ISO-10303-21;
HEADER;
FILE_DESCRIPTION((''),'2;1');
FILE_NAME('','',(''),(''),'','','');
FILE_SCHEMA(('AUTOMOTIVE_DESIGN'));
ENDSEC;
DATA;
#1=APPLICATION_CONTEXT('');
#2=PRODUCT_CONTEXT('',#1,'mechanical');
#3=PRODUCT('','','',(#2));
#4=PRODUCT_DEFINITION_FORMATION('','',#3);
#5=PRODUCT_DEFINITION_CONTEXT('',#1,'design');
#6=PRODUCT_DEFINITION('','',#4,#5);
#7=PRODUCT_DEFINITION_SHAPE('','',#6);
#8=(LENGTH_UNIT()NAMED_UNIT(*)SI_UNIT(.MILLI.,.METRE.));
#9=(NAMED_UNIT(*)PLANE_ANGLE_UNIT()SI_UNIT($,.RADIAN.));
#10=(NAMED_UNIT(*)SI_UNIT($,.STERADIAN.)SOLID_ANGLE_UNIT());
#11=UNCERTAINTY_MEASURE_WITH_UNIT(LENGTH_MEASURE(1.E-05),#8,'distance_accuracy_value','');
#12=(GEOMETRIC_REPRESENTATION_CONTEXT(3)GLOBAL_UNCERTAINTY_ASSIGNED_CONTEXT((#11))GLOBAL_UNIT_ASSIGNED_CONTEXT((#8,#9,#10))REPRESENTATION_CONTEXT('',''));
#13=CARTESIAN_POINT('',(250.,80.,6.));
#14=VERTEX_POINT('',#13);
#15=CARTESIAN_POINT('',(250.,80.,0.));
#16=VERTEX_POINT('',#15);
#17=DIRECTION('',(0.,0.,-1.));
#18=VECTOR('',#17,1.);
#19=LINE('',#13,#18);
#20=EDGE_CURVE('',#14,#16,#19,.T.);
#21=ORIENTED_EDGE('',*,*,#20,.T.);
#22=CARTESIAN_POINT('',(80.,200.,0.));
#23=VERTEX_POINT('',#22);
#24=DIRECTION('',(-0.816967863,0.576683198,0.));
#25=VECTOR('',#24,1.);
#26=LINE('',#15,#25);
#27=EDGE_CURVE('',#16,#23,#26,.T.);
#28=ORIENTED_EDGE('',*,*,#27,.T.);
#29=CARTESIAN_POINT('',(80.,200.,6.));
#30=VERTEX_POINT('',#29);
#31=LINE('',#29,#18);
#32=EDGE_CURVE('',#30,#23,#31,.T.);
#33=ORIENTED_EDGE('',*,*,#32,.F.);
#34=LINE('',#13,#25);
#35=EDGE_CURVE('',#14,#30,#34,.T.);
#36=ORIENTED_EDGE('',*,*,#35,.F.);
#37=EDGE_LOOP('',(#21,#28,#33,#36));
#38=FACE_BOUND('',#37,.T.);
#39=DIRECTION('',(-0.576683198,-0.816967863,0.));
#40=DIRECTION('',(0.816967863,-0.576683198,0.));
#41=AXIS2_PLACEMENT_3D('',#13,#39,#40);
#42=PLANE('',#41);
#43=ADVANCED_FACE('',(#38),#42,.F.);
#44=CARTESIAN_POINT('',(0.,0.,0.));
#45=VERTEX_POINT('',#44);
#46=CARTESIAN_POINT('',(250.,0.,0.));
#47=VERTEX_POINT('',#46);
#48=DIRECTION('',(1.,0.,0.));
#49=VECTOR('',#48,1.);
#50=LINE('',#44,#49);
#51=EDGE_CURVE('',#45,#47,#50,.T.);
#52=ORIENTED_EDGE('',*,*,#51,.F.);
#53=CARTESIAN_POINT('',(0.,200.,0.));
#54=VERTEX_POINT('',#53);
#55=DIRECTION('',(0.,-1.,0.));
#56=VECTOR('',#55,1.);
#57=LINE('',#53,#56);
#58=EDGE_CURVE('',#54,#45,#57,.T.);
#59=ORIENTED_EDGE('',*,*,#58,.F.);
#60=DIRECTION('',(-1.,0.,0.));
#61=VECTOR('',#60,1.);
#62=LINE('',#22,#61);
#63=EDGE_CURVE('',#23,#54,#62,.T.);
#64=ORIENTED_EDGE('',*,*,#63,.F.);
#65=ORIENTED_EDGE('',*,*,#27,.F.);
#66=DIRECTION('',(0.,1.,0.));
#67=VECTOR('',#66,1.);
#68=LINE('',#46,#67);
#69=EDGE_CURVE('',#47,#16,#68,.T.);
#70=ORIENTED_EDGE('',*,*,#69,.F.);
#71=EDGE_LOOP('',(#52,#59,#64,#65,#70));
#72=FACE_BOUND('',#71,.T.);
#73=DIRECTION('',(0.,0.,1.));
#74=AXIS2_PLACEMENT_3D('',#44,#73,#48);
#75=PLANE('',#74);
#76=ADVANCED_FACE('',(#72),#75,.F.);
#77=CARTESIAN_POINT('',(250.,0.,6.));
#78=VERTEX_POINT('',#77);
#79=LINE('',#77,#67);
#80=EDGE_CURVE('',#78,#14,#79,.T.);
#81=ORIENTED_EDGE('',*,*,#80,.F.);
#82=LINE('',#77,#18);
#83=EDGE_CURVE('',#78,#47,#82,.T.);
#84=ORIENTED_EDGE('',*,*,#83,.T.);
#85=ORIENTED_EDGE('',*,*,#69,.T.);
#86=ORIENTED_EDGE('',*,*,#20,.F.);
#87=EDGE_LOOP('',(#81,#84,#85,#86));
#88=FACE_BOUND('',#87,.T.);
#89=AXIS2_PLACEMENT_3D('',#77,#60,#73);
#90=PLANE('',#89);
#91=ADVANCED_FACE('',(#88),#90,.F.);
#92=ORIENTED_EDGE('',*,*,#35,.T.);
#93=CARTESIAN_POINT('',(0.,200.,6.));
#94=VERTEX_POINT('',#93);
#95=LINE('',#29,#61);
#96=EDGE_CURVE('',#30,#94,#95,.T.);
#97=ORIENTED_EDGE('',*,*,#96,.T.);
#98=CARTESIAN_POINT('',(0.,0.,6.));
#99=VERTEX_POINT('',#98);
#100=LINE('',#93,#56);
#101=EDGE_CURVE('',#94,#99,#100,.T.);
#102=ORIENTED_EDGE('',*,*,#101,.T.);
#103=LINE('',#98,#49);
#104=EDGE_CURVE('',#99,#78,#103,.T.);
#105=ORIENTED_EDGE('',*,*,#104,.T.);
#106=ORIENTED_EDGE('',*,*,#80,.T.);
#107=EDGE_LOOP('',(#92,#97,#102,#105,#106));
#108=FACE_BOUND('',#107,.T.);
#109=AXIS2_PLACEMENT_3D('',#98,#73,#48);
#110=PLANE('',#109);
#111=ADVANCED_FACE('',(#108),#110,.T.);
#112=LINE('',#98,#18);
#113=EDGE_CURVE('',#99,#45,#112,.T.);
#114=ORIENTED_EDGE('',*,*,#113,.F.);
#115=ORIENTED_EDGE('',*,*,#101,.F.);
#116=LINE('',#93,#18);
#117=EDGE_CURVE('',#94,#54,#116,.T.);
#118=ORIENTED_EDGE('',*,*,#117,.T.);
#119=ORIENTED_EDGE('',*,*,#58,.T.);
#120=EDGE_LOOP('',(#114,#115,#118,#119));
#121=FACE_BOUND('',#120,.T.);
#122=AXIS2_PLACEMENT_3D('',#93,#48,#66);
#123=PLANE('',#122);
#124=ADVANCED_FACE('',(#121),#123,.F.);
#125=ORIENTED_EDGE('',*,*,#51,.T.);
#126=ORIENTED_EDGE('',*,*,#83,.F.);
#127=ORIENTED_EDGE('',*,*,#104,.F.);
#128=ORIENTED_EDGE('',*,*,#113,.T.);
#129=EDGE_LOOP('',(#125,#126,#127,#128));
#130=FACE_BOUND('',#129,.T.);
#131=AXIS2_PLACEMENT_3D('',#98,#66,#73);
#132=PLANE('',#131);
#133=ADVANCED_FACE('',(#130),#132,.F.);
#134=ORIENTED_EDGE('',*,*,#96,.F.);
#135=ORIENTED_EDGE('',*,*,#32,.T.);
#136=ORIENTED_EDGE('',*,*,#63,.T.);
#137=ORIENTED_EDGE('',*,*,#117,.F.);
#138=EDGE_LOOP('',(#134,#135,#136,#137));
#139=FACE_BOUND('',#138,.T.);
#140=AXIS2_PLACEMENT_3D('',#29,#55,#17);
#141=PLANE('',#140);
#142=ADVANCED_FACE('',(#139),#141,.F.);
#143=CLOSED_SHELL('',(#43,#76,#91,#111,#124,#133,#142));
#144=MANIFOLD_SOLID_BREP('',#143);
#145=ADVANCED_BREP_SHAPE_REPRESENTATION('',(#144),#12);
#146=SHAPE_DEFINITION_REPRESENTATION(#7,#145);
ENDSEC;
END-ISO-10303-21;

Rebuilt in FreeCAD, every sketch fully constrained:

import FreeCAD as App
import Part
import Sketcher

V = App.Vector
Q = App.Units.Quantity


def add_polygon(sketch, points):
    """Adds a closed chain of lines whose ends are joined by coincident constraints."""
    first, n = sketch.GeometryCount, len(points)
    for a, b in zip(points, points[1:] + points[:1]):
        sketch.addGeometry(Part.LineSegment(App.Vector(*a, 0), App.Vector(*b, 0)), False)
    for i in range(n):
        sketch.addConstraint(Sketcher.Constraint("Coincident", first + i, 2, first + (i + 1) % n, 1))

doc = App.newDocument("Part")
params = doc.addObject("Spreadsheet::Sheet", "Params")
for row, (alias, value) in enumerate([
    ("sketch1_width", "250 mm"),
    ("sketch1_width2", "80 mm"),
    ("sketch1_height", "200 mm"),
    ("pad1_length", "6 mm"),
], start=1):
    params.set(f"A{row}", alias)
    params.set(f"B{row}", "=" + value)
    params.setAlias(f"B{row}", alias)

body = doc.addObject("PartDesign::Body", "Body")

# Sketch on XY plane
sketch1 = doc.addObject("Sketcher::SketchObject", "Sketch")
body.addObject(sketch1)
sketch1.AttachmentSupport = (doc.XY_Plane, [""])
sketch1.MapMode = "FlatFace"
add_polygon(sketch1, [(0, 0), (250, 0), (250, 80), (80, 200), (0, 200)])  # lines 0-4
sketch1.addConstraint([
    Sketcher.Constraint("Horizontal", 0),
    Sketcher.Constraint("Vertical", 1),
    Sketcher.Constraint("Horizontal", 3),
    Sketcher.Constraint("Vertical", 4),
    Sketcher.Constraint("Coincident", 4, 2, -1, 1),
    Sketcher.Constraint("Equal", 3, 1),
    Sketcher.Constraint("DistanceX", 0, 1, 0, 2, Q("250 mm")),
    Sketcher.Constraint("DistanceX", 3, 2, 3, 1, Q("80 mm")),
    Sketcher.Constraint("DistanceY", 4, 2, 4, 1, Q("200 mm")),
])
sketch1.setExpression("Constraints[11]", "Params.sketch1_width")
sketch1.setExpression("Constraints[12]", "Params.sketch1_width2")
sketch1.setExpression("Constraints[13]", "Params.sketch1_height")
pad1 = doc.addObject("PartDesign::Pad", "Pad")
body.addObject(pad1)
pad1.Profile = sketch1
pad1.setExpression("Length", "Params.pad1_length")

doc.recompute()
